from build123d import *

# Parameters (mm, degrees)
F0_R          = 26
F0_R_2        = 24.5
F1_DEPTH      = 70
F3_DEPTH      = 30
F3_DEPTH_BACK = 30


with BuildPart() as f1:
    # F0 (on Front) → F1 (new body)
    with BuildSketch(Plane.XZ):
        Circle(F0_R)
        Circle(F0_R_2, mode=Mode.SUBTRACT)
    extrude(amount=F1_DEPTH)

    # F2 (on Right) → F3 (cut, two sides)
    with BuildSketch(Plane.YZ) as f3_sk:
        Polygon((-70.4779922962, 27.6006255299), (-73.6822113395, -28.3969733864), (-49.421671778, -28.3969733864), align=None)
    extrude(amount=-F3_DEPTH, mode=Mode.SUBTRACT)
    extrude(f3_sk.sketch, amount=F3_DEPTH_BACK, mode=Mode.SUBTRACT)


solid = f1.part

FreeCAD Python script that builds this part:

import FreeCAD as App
import Part
import Sketcher

V = App.Vector
Q = App.Units.Quantity

doc = App.newDocument("Part")
params = doc.addObject("Spreadsheet::Sheet", "Params")
for row, (alias, value) in enumerate([
    ("sketch1_diameter", "52 mm"),
    ("sketch1_diameter2", "49 mm"),
    ("pad1_length", "70 mm"),
], start=1):
    params.set(f"A{row}", alias)
    params.set(f"B{row}", "=" + value)
    params.setAlias(f"B{row}", alias)

body = doc.addObject("PartDesign::Body", "Body")

# Sketch on XZ plane
sketch1 = body.newObject("Sketcher::SketchObject", "Sketch")
sketch1.AttachmentSupport = (doc.getObject("XZ_Plane"), [""])
sketch1.MapMode = "FlatFace"
sketch1.addGeometry([
    Part.Circle(V(0, 0, 0), V(0, 0, 1), 26),
    Part.Circle(V(0, 0, 0), V(0, 0, 1), 24.5),
], False)
sketch1.addConstraint([
    Sketcher.Constraint("Coincident", 0, 3, -1, 1),
    Sketcher.Constraint("Coincident", 1, 3, -1, 1),
    Sketcher.Constraint("Diameter", 0, Q("52 mm")),
    Sketcher.Constraint("Diameter", 1, Q("49 mm")),
])
sketch1.setExpression("Constraints[2]", "Params.sketch1_diameter")
sketch1.setExpression("Constraints[3]", "Params.sketch1_diameter2")
pad1 = body.newObject("PartDesign::Pad", "Pad")
pad1.Profile = sketch1
pad1.setExpression("Length", "Params.pad1_length")

# Sketch on YZ plane
sketch2 = body.newObject("Sketcher::SketchObject", "Sketch001")
sketch2.AttachmentSupport = (doc.getObject("YZ_Plane"), [""])
sketch2.MapMode = "FlatFace"
sketch2.addGeometry([
    Part.LineSegment(V(-70.477992, 27.600626, 0), V(-73.682211, -28.396973, 0)),
    Part.LineSegment(V(-73.682211, -28.396973, 0), V(-49.421672, -28.396973, 0)),
    Part.LineSegment(V(-49.421672, -28.396973, 0), V(-70.477992, 27.600626, 0)),
], False)
sketch2.addConstraint([
    Sketcher.Constraint("Coincident", 0, 2, 1, 1),
    Sketcher.Constraint("Coincident", 1, 2, 2, 1),
    Sketcher.Constraint("Coincident", 2, 2, 0, 1),
    Sketcher.Constraint("Horizontal", 1),
    Sketcher.Constraint("DistanceX", 1, 1, 1, 2, Q("24.26054 mm")),
    Sketcher.Constraint("DistanceY", 0, 2, 2, 2, Q("55.997599 mm")),
    Sketcher.Constraint("DistanceX", 0, 2, -1, 1, Q("73.682211 mm")),
    Sketcher.Constraint("DistanceX", 0, 2, 2, 2, Q("3.204219 mm")),
    Sketcher.Constraint("DistanceY", 0, 2, -1, 1, Q("28.396973 mm")),
])
pocket1 = body.newObject("PartDesign::Pocket", "Pocket")
pocket1.Profile = sketch2
pocket1.Type = "ThroughAll"
pocket1.Midplane = True

doc.recompute()
